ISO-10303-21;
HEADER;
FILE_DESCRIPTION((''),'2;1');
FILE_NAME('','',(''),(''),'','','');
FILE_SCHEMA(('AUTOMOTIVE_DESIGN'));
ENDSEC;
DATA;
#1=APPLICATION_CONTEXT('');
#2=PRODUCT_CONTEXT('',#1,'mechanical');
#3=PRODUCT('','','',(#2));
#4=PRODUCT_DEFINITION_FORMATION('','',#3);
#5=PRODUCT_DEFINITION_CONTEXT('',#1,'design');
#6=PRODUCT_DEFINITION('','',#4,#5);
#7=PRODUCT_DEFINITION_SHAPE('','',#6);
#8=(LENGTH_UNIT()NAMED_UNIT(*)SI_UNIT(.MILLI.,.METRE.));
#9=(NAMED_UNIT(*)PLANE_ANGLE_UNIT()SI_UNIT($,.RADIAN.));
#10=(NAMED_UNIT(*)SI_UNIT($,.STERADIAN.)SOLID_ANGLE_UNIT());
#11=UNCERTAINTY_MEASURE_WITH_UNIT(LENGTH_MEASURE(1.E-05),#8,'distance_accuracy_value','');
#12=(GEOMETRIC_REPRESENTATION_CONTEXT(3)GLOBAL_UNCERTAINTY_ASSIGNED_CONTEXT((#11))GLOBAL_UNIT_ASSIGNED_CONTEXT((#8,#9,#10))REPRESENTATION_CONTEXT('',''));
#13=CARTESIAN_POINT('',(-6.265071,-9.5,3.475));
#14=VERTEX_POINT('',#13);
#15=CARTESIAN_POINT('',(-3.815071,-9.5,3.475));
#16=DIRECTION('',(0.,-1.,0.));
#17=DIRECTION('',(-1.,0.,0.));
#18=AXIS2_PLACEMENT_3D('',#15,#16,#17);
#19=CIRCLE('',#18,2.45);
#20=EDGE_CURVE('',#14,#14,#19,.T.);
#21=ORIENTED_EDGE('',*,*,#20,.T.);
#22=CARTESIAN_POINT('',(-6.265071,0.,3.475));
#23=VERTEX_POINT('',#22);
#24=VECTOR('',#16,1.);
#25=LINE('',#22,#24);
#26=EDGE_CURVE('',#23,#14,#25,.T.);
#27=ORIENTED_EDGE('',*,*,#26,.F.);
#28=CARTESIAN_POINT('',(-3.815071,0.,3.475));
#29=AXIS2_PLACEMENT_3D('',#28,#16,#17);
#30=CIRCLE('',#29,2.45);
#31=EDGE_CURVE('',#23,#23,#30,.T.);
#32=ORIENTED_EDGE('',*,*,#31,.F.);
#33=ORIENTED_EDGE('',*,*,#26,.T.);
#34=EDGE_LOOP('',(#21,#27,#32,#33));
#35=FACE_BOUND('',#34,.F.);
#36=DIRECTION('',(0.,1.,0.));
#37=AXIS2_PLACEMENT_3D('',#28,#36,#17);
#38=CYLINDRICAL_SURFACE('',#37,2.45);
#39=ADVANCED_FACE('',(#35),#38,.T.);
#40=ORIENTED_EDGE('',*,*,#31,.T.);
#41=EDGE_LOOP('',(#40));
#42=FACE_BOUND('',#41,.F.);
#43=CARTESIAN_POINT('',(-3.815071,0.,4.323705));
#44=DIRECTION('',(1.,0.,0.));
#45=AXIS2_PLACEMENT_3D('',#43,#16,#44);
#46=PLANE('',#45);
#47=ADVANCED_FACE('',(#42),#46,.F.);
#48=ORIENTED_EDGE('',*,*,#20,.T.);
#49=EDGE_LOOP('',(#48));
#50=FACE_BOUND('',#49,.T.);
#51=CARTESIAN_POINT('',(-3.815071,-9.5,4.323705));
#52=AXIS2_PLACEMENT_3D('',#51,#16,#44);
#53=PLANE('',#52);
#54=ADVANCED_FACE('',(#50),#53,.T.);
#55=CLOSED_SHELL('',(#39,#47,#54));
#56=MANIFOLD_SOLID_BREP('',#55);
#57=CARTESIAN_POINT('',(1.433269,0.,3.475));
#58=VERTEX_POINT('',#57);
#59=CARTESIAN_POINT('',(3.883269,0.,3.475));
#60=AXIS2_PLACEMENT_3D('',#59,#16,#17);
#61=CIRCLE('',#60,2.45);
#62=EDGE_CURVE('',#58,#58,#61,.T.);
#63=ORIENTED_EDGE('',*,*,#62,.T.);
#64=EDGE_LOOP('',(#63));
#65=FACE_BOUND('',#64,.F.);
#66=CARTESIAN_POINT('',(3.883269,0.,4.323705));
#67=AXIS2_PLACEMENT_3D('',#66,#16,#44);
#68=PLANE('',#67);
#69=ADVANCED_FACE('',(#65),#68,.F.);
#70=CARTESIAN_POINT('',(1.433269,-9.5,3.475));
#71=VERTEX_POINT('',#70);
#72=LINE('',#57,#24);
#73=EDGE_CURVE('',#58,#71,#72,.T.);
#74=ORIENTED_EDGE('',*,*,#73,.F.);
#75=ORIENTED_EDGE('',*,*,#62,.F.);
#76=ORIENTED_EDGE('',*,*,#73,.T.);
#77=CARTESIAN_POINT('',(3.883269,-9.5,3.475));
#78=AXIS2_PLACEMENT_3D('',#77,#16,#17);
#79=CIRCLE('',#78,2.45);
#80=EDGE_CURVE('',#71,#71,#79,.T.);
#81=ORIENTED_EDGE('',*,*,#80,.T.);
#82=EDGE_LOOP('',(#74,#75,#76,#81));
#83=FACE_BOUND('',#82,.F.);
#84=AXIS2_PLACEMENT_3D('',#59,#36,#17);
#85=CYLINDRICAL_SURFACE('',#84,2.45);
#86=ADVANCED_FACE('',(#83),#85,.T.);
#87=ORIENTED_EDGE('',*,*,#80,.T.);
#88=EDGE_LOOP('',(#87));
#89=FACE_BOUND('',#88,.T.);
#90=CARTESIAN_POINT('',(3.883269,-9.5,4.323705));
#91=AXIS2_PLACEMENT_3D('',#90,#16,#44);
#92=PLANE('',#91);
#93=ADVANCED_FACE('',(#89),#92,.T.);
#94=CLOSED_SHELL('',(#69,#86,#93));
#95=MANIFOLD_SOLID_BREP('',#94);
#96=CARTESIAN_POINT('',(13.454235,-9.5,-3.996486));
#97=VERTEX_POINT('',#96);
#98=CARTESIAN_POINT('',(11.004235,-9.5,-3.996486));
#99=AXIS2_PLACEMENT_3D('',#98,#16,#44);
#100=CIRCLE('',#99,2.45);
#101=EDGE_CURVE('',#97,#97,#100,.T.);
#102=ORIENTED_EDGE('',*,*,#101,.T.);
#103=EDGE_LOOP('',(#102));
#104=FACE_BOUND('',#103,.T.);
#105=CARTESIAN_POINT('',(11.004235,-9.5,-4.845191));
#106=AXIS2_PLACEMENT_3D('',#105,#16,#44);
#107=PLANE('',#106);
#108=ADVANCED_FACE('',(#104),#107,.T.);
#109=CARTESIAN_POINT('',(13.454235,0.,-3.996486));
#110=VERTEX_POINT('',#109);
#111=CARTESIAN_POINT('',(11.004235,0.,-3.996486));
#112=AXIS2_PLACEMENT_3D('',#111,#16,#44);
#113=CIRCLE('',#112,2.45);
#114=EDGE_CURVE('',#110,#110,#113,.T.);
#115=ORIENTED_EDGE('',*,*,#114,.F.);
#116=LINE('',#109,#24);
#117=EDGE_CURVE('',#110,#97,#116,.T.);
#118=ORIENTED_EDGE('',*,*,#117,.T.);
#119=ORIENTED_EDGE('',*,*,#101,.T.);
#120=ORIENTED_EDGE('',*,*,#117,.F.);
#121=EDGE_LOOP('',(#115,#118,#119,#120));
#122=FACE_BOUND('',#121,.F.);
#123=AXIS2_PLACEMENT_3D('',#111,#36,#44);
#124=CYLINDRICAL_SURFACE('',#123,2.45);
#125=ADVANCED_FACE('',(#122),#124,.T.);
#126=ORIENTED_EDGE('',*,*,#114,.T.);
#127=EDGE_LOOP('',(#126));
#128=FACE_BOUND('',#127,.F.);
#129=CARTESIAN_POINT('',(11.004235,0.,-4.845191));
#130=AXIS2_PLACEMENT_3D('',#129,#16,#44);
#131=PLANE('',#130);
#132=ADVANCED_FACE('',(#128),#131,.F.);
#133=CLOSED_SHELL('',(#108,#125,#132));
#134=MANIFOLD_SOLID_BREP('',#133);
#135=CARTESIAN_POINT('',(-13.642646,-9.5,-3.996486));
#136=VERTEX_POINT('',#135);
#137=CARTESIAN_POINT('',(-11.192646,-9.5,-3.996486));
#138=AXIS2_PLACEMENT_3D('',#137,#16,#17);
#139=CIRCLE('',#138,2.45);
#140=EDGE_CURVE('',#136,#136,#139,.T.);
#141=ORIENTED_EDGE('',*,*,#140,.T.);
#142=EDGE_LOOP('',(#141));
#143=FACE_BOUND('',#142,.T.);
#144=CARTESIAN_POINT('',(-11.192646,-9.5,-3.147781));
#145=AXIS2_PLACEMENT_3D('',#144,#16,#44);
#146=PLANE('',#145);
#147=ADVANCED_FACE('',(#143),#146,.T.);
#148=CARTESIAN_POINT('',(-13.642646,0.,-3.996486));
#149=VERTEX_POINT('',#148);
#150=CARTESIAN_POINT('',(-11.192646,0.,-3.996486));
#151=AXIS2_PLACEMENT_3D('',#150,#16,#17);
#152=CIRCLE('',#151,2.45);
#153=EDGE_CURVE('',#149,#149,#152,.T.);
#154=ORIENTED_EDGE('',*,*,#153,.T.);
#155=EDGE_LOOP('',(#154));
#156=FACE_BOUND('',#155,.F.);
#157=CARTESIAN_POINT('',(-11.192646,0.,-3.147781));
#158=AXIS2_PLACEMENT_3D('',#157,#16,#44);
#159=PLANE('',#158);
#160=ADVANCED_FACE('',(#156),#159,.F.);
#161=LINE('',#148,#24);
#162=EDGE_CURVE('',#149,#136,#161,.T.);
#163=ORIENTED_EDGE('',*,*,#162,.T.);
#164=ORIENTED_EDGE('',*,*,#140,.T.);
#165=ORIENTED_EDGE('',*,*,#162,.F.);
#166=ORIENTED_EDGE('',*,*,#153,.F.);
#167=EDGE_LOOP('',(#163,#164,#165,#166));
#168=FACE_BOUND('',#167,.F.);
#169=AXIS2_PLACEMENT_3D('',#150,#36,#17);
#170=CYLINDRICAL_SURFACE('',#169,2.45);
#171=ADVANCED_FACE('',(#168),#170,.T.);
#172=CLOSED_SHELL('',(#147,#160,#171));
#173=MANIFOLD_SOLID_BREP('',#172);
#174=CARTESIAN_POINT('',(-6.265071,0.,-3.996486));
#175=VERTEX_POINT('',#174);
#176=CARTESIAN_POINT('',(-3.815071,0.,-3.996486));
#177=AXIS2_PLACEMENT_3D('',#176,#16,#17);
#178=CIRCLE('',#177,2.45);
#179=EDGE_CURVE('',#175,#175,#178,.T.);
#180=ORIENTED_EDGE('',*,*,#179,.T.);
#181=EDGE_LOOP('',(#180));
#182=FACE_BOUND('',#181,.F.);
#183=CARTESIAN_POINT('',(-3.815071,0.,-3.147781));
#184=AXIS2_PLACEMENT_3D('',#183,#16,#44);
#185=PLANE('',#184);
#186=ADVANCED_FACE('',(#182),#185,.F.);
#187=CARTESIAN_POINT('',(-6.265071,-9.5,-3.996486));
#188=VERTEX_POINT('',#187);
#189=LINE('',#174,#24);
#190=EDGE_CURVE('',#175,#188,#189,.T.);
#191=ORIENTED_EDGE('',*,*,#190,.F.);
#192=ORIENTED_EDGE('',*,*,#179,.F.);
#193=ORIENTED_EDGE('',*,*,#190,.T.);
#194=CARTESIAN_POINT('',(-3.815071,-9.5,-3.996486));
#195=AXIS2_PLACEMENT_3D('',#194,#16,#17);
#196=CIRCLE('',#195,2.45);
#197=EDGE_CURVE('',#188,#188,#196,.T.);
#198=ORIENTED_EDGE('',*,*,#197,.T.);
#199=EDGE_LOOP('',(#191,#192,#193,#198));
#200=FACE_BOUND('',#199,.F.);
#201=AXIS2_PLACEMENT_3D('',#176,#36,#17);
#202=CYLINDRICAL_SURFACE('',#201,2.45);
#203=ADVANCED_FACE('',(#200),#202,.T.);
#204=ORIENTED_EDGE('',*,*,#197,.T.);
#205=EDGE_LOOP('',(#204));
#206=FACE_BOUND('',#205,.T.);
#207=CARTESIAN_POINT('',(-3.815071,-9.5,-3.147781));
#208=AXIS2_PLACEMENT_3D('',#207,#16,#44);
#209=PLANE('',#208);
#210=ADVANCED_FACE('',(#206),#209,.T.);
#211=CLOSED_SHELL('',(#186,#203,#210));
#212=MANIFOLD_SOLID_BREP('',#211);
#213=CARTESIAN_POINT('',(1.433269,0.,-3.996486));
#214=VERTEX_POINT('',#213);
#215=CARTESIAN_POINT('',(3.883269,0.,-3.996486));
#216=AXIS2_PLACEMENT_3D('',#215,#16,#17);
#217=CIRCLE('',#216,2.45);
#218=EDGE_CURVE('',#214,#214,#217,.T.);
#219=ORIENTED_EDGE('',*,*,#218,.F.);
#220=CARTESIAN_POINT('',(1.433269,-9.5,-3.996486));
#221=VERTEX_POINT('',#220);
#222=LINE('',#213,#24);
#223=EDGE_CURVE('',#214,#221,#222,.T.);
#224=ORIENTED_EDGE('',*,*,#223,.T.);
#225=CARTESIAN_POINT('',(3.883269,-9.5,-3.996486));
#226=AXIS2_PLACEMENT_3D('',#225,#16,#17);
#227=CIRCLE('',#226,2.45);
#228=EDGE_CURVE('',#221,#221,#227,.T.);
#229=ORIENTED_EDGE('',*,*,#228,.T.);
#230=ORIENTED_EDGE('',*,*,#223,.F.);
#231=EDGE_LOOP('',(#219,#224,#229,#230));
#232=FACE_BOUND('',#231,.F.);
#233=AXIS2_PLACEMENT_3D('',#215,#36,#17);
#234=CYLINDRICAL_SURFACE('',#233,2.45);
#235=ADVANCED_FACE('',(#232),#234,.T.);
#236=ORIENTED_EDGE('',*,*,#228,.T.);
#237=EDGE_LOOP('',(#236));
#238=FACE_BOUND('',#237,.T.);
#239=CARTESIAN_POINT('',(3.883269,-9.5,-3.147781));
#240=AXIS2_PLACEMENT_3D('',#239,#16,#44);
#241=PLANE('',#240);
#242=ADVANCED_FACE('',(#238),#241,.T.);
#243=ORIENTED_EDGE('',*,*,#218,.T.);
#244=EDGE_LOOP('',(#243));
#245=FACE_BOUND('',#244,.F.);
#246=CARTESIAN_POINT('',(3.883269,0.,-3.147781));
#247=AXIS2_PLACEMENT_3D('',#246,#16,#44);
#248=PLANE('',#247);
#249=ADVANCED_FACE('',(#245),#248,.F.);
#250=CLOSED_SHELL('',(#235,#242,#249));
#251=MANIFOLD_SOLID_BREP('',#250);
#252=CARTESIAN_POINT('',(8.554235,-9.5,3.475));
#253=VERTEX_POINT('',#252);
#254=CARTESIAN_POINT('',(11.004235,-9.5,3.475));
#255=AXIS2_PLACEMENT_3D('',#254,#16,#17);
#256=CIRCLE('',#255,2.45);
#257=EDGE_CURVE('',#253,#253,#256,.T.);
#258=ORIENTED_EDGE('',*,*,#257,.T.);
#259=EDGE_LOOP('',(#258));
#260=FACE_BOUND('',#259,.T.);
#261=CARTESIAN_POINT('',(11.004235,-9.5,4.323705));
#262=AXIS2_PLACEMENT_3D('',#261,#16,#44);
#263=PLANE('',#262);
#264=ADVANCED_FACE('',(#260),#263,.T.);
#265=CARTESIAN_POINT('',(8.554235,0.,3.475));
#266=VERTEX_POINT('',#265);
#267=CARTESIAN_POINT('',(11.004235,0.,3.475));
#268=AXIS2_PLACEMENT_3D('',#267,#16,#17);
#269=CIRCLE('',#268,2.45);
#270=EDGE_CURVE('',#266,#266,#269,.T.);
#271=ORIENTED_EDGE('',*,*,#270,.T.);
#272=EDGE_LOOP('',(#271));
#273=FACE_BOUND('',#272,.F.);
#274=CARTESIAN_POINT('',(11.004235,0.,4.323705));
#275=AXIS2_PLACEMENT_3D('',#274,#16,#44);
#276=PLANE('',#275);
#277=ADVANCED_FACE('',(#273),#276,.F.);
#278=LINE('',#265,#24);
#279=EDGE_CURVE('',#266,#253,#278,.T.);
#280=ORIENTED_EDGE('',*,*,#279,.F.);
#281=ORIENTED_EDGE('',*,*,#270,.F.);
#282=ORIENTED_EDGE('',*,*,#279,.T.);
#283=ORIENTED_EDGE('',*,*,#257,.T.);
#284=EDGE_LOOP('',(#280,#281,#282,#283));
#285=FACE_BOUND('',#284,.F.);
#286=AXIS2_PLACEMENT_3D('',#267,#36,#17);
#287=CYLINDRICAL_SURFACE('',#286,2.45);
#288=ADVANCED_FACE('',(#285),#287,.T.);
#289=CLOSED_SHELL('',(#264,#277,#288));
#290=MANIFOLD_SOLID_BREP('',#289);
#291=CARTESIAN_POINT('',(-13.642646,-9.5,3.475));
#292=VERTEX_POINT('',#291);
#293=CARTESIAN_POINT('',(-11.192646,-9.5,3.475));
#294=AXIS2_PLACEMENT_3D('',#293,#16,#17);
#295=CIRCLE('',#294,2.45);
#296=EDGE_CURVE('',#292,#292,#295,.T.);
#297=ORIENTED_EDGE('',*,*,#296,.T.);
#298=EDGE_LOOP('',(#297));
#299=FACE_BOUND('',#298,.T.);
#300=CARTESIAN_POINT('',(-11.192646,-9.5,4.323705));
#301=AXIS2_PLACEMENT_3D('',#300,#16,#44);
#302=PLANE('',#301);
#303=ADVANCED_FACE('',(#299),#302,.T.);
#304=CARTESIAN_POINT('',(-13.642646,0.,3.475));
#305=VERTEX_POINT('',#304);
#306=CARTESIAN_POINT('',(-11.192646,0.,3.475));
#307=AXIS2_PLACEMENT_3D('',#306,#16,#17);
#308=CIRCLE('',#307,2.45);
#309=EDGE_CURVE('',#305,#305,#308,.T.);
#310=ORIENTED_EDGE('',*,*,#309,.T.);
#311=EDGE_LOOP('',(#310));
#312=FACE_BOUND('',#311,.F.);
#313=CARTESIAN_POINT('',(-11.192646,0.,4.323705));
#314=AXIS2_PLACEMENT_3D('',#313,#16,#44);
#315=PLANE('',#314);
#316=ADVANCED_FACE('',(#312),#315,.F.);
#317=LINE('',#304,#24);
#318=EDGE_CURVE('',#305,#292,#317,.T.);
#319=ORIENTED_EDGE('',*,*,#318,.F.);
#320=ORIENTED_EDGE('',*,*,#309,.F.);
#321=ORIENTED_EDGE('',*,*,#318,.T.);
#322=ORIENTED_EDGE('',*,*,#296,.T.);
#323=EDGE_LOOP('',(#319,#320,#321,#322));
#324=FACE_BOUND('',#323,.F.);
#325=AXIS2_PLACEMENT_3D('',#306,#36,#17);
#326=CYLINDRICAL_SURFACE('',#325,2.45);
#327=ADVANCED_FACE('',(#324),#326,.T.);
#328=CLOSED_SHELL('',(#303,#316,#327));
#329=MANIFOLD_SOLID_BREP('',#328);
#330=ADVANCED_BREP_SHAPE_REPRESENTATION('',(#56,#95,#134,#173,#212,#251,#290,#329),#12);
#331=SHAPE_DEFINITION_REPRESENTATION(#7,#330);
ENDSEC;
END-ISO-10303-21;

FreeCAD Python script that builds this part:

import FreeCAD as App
import Part
import Sketcher
from FreeCAD import Vector
Q = App.Units.Quantity

doc = App.newDocument("Part")
body = doc.addObject("PartDesign::Body", "Body")

sketch1 = doc.addObject("Sketcher::SketchObject", "Sketch")
body.addObject(sketch1)
sketch1.AttachmentSupport = (doc.XZ_Plane, [""])
sketch1.MapMode = "FlatFace"
sketch1.addGeometry(Part.Circle(Vector(-11.192646, 3.475, 0), Vector(0, 0, 1), 2.45), False)
sketch1.addConstraint(Sketcher.Constraint("Diameter", 0, Q("4.9 mm")))
sketch1.addConstraint(Sketcher.Constraint("DistanceY", -1, 1, 0, 3, Q("3.475 mm")))
sketch1.addConstraint(Sketcher.Constraint("DistanceX", 0, 3, -1, 1, Q("11.192646 mm")))
pad1 = doc.addObject("PartDesign::Pad", "Pad")
body.addObject(pad1)
pad1.Profile = sketch1
pad1.Length = 9.5
body2 = doc.addObject("PartDesign::Body", "Body001")

sketch2 = doc.addObject("Sketcher::SketchObject", "Sketch001")
body2.addObject(sketch2)
sketch2.AttachmentSupport = (doc.getObject("XZ_Plane001"), [""])
sketch2.MapMode = "FlatFace"
sketch2.addGeometry(Part.Circle(Vector(-3.815071, 3.475, 0), Vector(0, 0, 1), 2.45), False)
sketch2.addConstraint(Sketcher.Constraint("Diameter", 0, Q("4.9 mm")))
sketch2.addConstraint(Sketcher.Constraint("DistanceY", -1, 1, 0, 3, Q("3.475 mm")))
sketch2.addConstraint(Sketcher.Constraint("DistanceX", 0, 3, -1, 1, Q("3.815071 mm")))
pad2 = doc.addObject("PartDesign::Pad", "Pad001")
body2.addObject(pad2)
pad2.Profile = sketch2
pad2.Length = 9.5
body3 = doc.addObject("PartDesign::Body", "Body002")

sketch3 = doc.addObject("Sketcher::SketchObject", "Sketch002")
body3.addObject(sketch3)
sketch3.AttachmentSupport = (doc.getObject("XZ_Plane002"), [""])
sketch3.MapMode = "FlatFace"
sketch3.addGeometry(Part.Circle(Vector(3.883269, 3.475, 0), Vector(0, 0, 1), 2.45), False)
sketch3.addConstraint(Sketcher.Constraint("Diameter", 0, Q("4.9 mm")))
sketch3.addConstraint(Sketcher.Constraint("DistanceY", -1, 1, 0, 3, Q("3.475 mm")))
sketch3.addConstraint(Sketcher.Constraint("DistanceX", -1, 1, 0, 3, Q("3.883269 mm")))
pad3 = doc.addObject("PartDesign::Pad", "Pad002")
body3.addObject(pad3)
pad3.Profile = sketch3
pad3.Length = 9.5
body4 = doc.addObject("PartDesign::Body", "Body003")

sketch4 = doc.addObject("Sketcher::SketchObject", "Sketch003")
body4.addObject(sketch4)
sketch4.AttachmentSupport = (doc.getObject("XZ_Plane003"), [""])
sketch4.MapMode = "FlatFace"
sketch4.addGeometry(Part.Circle(Vector(11.004235, 3.475, 0), Vector(0, 0, 1), 2.45), False)
sketch4.addConstraint(Sketcher.Constraint("Diameter", 0, Q("4.9 mm")))
sketch4.addConstraint(Sketcher.Constraint("DistanceY", -1, 1, 0, 3, Q("3.475 mm")))
sketch4.addConstraint(Sketcher.Constraint("DistanceX", -1, 1, 0, 3, Q("11.004235 mm")))
pad4 = doc.addObject("PartDesign::Pad", "Pad003")
body4.addObject(pad4)
pad4.Profile = sketch4
pad4.Length = 9.5
body5 = doc.addObject("PartDesign::Body", "Body004")

sketch5 = doc.addObject("Sketcher::SketchObject", "Sketch004")
body5.addObject(sketch5)
sketch5.AttachmentSupport = (doc.getObject("XZ_Plane004"), [""])
sketch5.MapMode = "FlatFace"
sketch5.addGeometry(Part.Circle(Vector(11.004235, -3.996486, 0), Vector(0, 0, 1), 2.45), False)
sketch5.addConstraint(Sketcher.Constraint("Diameter", 0, Q("4.9 mm")))
sketch5.addConstraint(Sketcher.Constraint("DistanceX", -1, 1, 0, 3, Q("11.004235 mm")))
sketch5.addConstraint(Sketcher.Constraint("DistanceY", 0, 3, -1, 1, Q("3.996486 mm")))
pad5 = doc.addObject("PartDesign::Pad", "Pad004")
body5.addObject(pad5)
pad5.Profile = sketch5
pad5.Length = 9.5
body6 = doc.addObject("PartDesign::Body", "Body005")

sketch6 = doc.addObject("Sketcher::SketchObject", "Sketch005")
body6.addObject(sketch6)
sketch6.AttachmentSupport = (doc.getObject("XZ_Plane005"), [""])
sketch6.MapMode = "FlatFace"
sketch6.addGeometry(Part.Circle(Vector(3.883269, -3.996486, 0), Vector(0, 0, 1), 2.45), False)
sketch6.addConstraint(Sketcher.Constraint("Diameter", 0, Q("4.9 mm")))
sketch6.addConstraint(Sketcher.Constraint("DistanceX", -1, 1, 0, 3, Q("3.883269 mm")))
sketch6.addConstraint(Sketcher.Constraint("DistanceY", 0, 3, -1, 1, Q("3.996486 mm")))
pad6 = doc.addObject("PartDesign::Pad", "Pad005")
body6.addObject(pad6)
pad6.Profile = sketch6
pad6.Length = 9.5
body7 = doc.addObject("PartDesign::Body", "Body006")

sketch7 = doc.addObject("Sketcher::SketchObject", "Sketch006")
body7.addObject(sketch7)
sketch7.AttachmentSupport = (doc.getObject("XZ_Plane006"), [""])
sketch7.MapMode = "FlatFace"
sketch7.addGeometry(Part.Circle(Vector(-3.815071, -3.996486, 0), Vector(0, 0, 1), 2.45), False)
sketch7.addConstraint(Sketcher.Constraint("Diameter", 0, Q("4.9 mm")))
sketch7.addConstraint(Sketcher.Constraint("DistanceX", 0, 3, -1, 1, Q("3.815071 mm")))
sketch7.addConstraint(Sketcher.Constraint("DistanceY", 0, 3, -1, 1, Q("3.996486 mm")))
pad7 = doc.addObject("PartDesign::Pad", "Pad006")
body7.addObject(pad7)
pad7.Profile = sketch7
pad7.Length = 9.5
body8 = doc.addObject("PartDesign::Body", "Body007")

sketch8 = doc.addObject("Sketcher::SketchObject", "Sketch007")
body8.addObject(sketch8)
sketch8.AttachmentSupport = (doc.getObject("XZ_Plane007"), [""])
sketch8.MapMode = "FlatFace"
sketch8.addGeometry(Part.Circle(Vector(-11.192646, -3.996486, 0), Vector(0, 0, 1), 2.45), False)
sketch8.addConstraint(Sketcher.Constraint("Diameter", 0, Q("4.9 mm")))
sketch8.addConstraint(Sketcher.Constraint("DistanceX", 0, 3, -1, 1, Q("11.192646 mm")))
sketch8.addConstraint(Sketcher.Constraint("DistanceY", 0, 3, -1, 1, Q("3.996486 mm")))
pad8 = doc.addObject("PartDesign::Pad", "Pad007")
body8.addObject(pad8)
pad8.Profile = sketch8
pad8.Length = 9.5

doc.recompute()
